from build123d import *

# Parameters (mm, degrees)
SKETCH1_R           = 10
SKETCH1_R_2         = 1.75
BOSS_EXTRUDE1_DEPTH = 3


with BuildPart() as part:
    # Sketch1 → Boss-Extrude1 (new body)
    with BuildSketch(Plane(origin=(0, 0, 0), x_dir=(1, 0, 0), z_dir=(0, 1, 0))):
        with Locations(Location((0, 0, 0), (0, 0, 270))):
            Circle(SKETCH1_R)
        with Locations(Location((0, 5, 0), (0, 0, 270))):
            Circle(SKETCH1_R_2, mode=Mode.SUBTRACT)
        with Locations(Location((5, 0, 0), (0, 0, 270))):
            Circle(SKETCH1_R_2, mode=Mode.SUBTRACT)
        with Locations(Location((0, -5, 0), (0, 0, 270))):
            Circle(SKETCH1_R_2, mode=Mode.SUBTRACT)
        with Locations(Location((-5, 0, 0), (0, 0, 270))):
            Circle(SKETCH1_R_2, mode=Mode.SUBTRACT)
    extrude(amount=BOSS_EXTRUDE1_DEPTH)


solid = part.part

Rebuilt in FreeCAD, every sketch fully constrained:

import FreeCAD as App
import Part
import Sketcher

V = App.Vector

doc = App.newDocument("Part")
body = doc.addObject("PartDesign::Body", "Body")

# Sketch on XZ plane
sketch1 = body.newObject("Sketcher::SketchObject", "Sketch")
sketch1.AttachmentSupport = (doc.getObject("XZ_Plane"), [""])
sketch1.MapMode = "FlatFace"
sketch1.addGeometry([
    Part.Circle(V(0, 0, 0), V(0, 0, 1), 10),  # 0
    Part.Circle(V(0, -5, 0), V(0, 0, 1), 1.8),  # 1
    Part.Circle(V(-5, 0, 0), V(0, 0, 1), 1.8),  # 2
    Part.Circle(V(5, 0, 0), V(0, 0, 1), 1.8),  # 3
    Part.Circle(V(0, 5, 0), V(0, 0, 1), 1.8),  # 4
], False)
sketch1.addConstraint([
    Sketcher.Constraint("Coincident", 0, 3, -1, 1),
    Sketcher.Constraint("Equal", 1, 2),
    Sketcher.Constraint("Equal", 2, 3),
    Sketcher.Constraint("Equal", 3, 4),
    Sketcher.Constraint("Symmetric", 2, 3, 3, 3, -1, 1),
    Sketcher.Constraint("Symmetric", 1, 3, 4, 3, -1, 1),
    Sketcher.Constraint("PointOnObject", 1, 3, -2),
    Sketcher.Constraint("PointOnObject", 2, 3, -1),
    Sketcher.Constraint("Diameter", 0, 20.0),
    Sketcher.Constraint("Diameter", 1, 3.5),
    Sketcher.Constraint("DistanceY", 1, 3, -1, 1, 5.0),
    Sketcher.Constraint("DistanceX", 2, 3, -1, 1, 5.0),
])
pad1 = body.newObject("PartDesign::Pad", "Pad")
pad1.Profile = sketch1
pad1.Length = 3
pad1.Reversed = True

doc.recompute()
